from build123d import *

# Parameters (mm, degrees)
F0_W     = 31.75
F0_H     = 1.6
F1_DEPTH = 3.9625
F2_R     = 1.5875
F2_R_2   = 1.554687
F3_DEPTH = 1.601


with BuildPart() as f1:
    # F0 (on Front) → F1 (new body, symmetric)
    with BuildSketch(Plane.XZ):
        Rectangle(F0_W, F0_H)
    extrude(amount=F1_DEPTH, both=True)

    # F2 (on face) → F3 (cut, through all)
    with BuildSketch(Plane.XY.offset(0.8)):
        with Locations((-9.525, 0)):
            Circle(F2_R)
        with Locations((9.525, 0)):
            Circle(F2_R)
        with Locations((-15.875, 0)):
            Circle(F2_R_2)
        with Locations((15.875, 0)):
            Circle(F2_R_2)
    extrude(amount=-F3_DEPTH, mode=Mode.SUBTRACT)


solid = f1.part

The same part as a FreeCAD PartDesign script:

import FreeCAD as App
import Part
import Sketcher
Q = App.Units.Quantity


def add_polygon(sketch, points):
    """Adds a closed chain of lines whose ends are joined by coincident constraints."""
    first, n = sketch.GeometryCount, len(points)
    for a, b in zip(points, points[1:] + points[:1]):
        sketch.addGeometry(Part.LineSegment(App.Vector(*a, 0), App.Vector(*b, 0)), False)
    for i in range(n):
        sketch.addConstraint(Sketcher.Constraint("Coincident", first + i, 2, first + (i + 1) % n, 1))

doc = App.newDocument("Part")
body = doc.addObject("PartDesign::Body", "Body")

# Sketch on XZ plane
sketch1 = body.newObject("Sketcher::SketchObject", "Sketch")
sketch1.AttachmentSupport = (doc.getObject("XZ_Plane"), [""])
sketch1.MapMode = "FlatFace"
add_polygon(sketch1, [(-15.875, 0.8), (-15.875, -0.8), (15.875, -0.8), (15.875, 0.8)])  # lines 0-3
sketch1.addConstraint([
    Sketcher.Constraint("Vertical", 0),
    Sketcher.Constraint("Horizontal", 1),
    Sketcher.Constraint("Vertical", 2),
    Sketcher.Constraint("Horizontal", 3),
    Sketcher.Constraint("Symmetric", 0, 2, 2, 2, -1, 1),
    Sketcher.Constraint("DistanceX", 1, 1, 1, 2, Q("1.25 in")),
    Sketcher.Constraint("DistanceY", 0, 2, 0, 1, 1.6),
])
pad1 = body.newObject("PartDesign::Pad", "Pad")
pad1.Profile = sketch1
pad1.Length = 7.925
pad1.Midplane = True

# Sketch on XY plane
sketch2 = body.newObject("Sketcher::SketchObject", "Sketch001")
sketch2.AttachmentSupport = (doc.getObject("XY_Plane"), [""])
sketch2.MapMode = "FlatFace"
sketch2.AttachmentOffset = App.Placement(App.Vector(0, 0, 0.8), App.Rotation())
sketch2.addGeometry([
    Part.Circle(App.Vector(-9.525, 0, 0), App.Vector(0, 0, 1), 1.5875),
    Part.Circle(App.Vector(9.525, 0, 0), App.Vector(0, 0, 1), 1.5875),
    Part.Circle(App.Vector(-15.875, 0, 0), App.Vector(0, 0, 1), 1.554687),
    Part.Circle(App.Vector(15.875, 0, 0), App.Vector(0, 0, 1), 1.554687),
], False)
sketch2.addConstraint([
    Sketcher.Constraint("Equal", 0, 1),
    Sketcher.Constraint("Equal", 2, 3),
    Sketcher.Constraint("Symmetric", 0, 3, 1, 3, -1, 1),
    Sketcher.Constraint("Symmetric", 2, 3, 3, 3, -1, 1),
    Sketcher.Constraint("PointOnObject", 0, 3, -1),
    Sketcher.Constraint("PointOnObject", 2, 3, -1),
    Sketcher.Constraint("Diameter", 0, Q("0.125 in")),
    Sketcher.Constraint("DistanceX", 2, 3, 1, 3, Q("1 in")),
    Sketcher.Constraint("DistanceX", 0, 3, 1, 3, Q("0.75 in")),
    Sketcher.Constraint("Diameter", 2, 3.109374),
])
pocket1 = body.newObject("PartDesign::Pocket", "Pocket")
pocket1.Profile = sketch2
pocket1.Type = "ThroughAll"

doc.recompute()
